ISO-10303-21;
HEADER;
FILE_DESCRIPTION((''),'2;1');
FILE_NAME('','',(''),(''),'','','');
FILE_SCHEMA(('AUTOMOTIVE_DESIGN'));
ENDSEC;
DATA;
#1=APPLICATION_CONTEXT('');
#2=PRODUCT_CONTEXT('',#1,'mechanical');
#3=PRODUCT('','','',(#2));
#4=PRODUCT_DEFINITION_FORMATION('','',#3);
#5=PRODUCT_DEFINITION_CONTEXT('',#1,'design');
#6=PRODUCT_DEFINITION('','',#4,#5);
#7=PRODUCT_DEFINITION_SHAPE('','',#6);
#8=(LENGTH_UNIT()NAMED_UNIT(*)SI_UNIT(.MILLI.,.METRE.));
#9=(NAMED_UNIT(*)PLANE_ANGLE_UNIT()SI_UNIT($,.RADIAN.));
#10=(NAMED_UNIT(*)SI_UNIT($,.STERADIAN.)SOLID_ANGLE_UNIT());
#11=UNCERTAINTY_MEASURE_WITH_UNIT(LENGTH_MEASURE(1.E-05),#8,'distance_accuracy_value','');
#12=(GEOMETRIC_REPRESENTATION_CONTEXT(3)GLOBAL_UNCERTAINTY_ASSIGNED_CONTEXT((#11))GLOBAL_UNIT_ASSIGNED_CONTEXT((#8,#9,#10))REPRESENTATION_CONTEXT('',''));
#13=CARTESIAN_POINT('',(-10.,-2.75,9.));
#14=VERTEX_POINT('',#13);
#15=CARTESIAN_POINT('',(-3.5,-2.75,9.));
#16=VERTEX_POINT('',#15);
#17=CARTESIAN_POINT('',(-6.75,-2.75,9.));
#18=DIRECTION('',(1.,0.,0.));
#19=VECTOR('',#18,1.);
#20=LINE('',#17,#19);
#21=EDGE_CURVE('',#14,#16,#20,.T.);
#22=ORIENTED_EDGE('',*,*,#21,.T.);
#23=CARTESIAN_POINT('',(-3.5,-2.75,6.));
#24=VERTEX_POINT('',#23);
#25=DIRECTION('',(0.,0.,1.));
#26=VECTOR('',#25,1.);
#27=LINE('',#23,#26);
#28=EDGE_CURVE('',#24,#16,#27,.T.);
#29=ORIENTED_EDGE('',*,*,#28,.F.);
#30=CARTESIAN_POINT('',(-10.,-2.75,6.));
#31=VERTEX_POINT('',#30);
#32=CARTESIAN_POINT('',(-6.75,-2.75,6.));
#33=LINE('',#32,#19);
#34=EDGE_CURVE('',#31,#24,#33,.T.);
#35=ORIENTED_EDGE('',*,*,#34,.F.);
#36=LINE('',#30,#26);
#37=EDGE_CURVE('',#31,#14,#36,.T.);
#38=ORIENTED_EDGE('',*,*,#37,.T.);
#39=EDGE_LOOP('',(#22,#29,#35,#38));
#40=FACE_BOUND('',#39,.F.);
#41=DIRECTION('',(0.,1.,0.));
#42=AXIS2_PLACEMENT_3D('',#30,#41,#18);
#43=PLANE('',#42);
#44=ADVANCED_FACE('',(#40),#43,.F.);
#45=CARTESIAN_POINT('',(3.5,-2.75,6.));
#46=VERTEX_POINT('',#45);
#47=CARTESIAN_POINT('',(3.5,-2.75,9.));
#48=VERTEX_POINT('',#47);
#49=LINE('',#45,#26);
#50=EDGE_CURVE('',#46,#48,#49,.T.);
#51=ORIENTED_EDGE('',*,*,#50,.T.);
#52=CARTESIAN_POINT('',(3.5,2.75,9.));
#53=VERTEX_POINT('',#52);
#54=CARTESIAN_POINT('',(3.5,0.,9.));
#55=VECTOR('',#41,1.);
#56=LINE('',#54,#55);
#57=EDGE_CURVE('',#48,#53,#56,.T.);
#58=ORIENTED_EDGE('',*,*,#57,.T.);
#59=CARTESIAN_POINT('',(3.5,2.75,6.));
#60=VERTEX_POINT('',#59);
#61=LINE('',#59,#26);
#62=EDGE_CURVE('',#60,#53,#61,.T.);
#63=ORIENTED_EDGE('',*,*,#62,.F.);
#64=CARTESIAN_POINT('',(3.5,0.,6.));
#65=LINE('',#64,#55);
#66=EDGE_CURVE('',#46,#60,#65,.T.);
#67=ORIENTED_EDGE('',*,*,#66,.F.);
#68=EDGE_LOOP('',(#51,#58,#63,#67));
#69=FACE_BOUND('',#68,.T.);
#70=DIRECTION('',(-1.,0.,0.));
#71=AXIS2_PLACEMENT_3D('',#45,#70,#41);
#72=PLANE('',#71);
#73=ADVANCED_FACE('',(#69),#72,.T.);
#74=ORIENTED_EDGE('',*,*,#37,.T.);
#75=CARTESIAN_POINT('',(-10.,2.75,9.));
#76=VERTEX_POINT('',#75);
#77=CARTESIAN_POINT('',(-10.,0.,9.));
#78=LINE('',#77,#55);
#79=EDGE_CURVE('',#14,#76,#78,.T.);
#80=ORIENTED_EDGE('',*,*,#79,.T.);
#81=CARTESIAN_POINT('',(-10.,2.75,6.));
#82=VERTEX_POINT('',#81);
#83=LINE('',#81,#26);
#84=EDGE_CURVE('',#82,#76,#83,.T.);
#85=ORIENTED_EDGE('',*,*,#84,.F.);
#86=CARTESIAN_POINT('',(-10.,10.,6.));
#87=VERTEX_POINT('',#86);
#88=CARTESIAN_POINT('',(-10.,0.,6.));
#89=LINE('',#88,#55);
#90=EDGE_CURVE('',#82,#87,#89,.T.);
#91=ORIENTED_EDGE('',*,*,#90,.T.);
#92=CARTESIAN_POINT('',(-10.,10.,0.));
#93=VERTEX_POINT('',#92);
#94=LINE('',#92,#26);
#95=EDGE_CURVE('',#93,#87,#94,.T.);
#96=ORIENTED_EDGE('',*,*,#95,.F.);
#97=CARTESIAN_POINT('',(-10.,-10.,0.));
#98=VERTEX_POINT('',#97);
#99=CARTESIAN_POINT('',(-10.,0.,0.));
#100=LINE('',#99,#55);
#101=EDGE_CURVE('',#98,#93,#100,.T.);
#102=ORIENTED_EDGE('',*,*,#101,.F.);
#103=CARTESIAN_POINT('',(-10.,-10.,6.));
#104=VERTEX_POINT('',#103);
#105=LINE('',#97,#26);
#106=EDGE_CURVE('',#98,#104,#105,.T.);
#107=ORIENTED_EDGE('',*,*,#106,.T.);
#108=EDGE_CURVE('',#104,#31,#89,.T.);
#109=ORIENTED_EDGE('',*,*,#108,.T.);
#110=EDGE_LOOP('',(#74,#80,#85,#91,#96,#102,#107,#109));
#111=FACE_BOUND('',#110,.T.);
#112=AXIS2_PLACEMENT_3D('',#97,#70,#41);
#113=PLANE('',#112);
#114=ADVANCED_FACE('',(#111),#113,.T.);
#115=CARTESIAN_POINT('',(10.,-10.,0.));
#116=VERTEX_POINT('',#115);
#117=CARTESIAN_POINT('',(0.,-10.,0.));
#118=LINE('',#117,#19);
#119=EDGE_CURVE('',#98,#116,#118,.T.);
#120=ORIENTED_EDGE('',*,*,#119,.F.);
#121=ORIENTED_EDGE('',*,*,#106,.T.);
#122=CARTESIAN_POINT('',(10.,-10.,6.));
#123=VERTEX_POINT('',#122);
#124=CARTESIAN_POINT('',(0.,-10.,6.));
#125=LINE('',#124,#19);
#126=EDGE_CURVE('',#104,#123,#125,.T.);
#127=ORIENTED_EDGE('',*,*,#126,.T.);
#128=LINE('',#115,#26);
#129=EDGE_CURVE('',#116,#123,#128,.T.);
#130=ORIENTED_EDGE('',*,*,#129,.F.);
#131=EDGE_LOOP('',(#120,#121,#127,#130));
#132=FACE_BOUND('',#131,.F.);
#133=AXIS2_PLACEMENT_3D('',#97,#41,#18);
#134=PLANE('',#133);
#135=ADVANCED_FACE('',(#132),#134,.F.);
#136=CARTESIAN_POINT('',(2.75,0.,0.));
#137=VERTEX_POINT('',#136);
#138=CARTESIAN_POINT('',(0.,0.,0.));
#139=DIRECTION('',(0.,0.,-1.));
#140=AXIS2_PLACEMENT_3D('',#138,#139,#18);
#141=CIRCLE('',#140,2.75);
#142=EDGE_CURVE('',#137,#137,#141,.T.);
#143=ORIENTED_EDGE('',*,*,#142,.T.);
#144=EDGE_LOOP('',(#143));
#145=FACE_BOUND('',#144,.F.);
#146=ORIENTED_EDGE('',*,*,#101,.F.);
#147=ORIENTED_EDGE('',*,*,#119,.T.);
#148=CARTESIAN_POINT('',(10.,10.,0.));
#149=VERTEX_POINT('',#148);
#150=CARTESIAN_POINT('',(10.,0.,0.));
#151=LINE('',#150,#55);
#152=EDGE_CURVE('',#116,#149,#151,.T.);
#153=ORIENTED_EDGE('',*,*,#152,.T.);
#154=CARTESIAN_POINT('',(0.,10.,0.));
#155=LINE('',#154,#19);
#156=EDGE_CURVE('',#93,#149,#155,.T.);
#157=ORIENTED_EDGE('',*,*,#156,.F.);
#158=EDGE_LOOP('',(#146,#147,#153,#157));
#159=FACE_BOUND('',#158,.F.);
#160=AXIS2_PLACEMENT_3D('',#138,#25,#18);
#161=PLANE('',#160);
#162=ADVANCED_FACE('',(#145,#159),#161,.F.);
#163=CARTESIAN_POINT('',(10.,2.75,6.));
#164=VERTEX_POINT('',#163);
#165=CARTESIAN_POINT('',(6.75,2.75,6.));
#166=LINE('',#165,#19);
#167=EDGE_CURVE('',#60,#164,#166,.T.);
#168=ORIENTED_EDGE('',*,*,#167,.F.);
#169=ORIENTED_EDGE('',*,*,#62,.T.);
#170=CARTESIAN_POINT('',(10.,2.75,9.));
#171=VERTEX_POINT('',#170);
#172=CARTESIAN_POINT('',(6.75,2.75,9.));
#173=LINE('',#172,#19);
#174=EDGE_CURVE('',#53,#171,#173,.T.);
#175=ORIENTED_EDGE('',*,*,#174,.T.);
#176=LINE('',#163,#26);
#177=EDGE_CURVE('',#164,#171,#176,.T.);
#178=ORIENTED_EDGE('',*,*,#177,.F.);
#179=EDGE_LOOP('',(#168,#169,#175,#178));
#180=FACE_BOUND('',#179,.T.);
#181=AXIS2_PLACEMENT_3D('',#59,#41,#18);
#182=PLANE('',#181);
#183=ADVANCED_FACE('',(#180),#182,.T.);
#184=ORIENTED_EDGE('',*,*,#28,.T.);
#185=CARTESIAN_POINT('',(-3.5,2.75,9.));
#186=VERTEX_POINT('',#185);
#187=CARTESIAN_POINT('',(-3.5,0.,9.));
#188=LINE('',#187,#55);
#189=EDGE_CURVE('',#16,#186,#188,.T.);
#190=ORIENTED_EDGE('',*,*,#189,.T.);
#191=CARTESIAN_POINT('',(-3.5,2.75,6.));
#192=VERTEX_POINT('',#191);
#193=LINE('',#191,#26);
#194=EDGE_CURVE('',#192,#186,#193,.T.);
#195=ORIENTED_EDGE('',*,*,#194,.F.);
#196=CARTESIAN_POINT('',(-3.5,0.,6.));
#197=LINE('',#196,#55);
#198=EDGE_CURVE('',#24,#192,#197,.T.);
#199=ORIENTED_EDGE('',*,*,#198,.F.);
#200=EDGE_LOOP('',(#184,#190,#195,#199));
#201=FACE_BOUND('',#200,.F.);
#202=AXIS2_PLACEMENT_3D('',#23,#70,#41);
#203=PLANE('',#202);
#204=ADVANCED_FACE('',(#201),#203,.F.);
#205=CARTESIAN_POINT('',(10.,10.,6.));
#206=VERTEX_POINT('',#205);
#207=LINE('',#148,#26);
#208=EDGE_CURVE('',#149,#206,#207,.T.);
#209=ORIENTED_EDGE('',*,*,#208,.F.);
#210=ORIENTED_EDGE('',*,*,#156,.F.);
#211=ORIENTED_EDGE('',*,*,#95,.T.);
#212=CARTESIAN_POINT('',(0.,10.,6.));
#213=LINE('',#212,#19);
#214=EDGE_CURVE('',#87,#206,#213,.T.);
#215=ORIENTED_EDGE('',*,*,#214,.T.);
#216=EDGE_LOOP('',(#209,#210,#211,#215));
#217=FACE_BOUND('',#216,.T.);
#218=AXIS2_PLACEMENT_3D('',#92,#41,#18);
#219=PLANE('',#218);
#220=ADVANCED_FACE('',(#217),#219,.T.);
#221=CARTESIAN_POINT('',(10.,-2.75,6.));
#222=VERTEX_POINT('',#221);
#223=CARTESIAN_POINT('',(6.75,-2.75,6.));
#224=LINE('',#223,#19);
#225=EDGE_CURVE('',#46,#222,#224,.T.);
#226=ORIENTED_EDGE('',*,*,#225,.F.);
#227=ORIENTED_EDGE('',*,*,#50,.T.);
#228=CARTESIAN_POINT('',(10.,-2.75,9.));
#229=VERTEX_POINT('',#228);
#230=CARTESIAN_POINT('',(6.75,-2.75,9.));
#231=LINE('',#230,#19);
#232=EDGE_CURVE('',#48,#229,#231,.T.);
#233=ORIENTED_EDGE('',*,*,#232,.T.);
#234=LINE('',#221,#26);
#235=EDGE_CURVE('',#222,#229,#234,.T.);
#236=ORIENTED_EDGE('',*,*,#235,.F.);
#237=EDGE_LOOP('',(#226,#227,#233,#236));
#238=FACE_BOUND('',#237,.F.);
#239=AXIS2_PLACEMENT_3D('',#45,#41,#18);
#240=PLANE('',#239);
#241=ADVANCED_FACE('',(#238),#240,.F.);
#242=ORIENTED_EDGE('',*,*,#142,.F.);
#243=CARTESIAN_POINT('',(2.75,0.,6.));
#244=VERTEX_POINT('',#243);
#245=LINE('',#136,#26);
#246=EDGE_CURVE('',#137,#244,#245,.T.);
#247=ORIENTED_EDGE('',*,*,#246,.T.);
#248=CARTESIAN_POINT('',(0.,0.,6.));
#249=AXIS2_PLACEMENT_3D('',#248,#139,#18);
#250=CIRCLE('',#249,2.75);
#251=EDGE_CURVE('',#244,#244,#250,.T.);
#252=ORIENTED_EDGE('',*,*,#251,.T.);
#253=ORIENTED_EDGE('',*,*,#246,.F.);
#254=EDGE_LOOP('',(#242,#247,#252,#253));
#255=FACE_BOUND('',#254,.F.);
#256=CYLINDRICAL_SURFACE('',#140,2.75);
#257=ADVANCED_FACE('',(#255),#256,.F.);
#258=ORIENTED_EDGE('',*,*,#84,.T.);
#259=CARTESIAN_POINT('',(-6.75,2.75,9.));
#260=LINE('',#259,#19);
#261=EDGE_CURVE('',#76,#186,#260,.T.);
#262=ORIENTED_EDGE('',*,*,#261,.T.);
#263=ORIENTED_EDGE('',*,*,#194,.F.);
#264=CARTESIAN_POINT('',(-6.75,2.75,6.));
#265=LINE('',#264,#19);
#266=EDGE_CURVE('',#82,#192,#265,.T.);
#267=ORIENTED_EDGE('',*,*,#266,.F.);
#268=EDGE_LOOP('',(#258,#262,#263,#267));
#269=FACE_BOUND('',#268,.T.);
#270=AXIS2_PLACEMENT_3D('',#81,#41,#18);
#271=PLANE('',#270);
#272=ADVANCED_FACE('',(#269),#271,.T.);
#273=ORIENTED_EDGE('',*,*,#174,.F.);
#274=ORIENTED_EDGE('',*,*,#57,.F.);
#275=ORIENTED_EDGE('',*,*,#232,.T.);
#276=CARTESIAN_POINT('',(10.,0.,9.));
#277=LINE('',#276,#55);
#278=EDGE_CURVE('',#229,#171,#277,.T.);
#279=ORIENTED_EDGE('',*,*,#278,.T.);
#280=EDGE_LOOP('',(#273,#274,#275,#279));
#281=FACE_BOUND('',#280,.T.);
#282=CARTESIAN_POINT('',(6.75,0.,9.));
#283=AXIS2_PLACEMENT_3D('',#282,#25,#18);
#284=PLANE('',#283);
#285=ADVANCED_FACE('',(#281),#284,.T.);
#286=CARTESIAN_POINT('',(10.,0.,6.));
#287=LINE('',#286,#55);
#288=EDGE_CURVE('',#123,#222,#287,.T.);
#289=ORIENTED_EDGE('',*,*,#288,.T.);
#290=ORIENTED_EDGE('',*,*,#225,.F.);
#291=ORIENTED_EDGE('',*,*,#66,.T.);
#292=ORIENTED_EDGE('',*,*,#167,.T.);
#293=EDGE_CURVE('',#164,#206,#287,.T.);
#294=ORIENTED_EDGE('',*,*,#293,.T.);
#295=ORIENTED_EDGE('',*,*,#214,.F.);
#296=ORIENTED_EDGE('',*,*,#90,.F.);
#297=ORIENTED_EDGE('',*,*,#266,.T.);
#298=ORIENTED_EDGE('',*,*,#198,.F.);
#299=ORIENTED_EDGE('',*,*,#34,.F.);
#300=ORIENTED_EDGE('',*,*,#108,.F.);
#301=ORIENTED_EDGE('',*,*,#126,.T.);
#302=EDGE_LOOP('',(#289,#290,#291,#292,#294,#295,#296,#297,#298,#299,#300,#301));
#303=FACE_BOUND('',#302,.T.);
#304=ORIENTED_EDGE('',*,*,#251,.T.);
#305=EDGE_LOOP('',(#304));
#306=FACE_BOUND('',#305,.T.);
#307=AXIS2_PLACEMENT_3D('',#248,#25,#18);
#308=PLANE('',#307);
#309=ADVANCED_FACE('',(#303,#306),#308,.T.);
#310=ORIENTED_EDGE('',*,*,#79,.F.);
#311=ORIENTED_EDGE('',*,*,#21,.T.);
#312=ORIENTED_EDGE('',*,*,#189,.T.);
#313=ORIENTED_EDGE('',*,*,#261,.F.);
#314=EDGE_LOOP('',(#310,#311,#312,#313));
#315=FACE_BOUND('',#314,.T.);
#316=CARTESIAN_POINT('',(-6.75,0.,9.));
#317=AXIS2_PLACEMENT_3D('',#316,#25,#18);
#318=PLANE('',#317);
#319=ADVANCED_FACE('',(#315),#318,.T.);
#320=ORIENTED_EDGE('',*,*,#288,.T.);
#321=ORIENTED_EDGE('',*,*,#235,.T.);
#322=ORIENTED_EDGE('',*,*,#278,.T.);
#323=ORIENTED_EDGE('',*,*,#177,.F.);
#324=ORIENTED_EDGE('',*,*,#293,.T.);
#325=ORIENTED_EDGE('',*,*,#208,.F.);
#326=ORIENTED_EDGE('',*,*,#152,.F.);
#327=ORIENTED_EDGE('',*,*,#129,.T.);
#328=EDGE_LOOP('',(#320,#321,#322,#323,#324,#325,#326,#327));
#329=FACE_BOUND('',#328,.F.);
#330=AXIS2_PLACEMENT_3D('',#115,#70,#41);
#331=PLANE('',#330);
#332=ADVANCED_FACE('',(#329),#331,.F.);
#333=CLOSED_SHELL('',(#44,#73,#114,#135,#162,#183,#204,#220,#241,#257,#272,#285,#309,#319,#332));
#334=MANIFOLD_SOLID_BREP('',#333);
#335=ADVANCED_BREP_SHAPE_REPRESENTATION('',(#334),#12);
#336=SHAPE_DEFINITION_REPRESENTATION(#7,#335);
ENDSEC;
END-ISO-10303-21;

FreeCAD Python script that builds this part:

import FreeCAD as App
import Part
import Sketcher

doc = App.newDocument("Part")
params = doc.addObject("Spreadsheet::Sheet", "Params")
for row, (alias, value) in enumerate([
    ("sketch1_width", "20 mm"),
    ("pad1_length", "6 mm"),
    ("sketch2_width", "6.5 mm"),
    ("sketch2_height", "5.5 mm"),
    ("pad2_length", "3 mm"),
    ("sketch3_diameter", "5.5 mm"),
], start=1):
    params.set(f"A{row}", alias)
    params.set(f"B{row}", "=" + value)
    params.setAlias(f"B{row}", alias)

body = doc.addObject("PartDesign::Body", "Body")

sketch1 = body.newObject("Sketcher::SketchObject", "Sketch")
sketch1.AttachmentSupport = (doc.getObject("XY_Plane"), [""])
sketch1.MapMode = "FlatFace"
sketch1.addGeometry(Part.LineSegment(App.Vector(-10, 10, 0), App.Vector(-10, -10, 0)), False)
sketch1.addGeometry(Part.LineSegment(App.Vector(-10, -10, 0), App.Vector(10, -10, 0)), False)
sketch1.addGeometry(Part.LineSegment(App.Vector(10, -10, 0), App.Vector(10, 10, 0)), False)
sketch1.addGeometry(Part.LineSegment(App.Vector(10, 10, 0), App.Vector(-10, 10, 0)), False)
sketch1.addConstraint(Sketcher.Constraint("Coincident", 0, 2, 1, 1))
sketch1.addConstraint(Sketcher.Constraint("Coincident", 1, 2, 2, 1))
sketch1.addConstraint(Sketcher.Constraint("Coincident", 2, 2, 3, 1))
sketch1.addConstraint(Sketcher.Constraint("Coincident", 3, 2, 0, 1))
sketch1.addConstraint(Sketcher.Constraint("Vertical", 0))
sketch1.addConstraint(Sketcher.Constraint("Horizontal", 1))
sketch1.addConstraint(Sketcher.Constraint("Vertical", 2))
sketch1.addConstraint(Sketcher.Constraint("Horizontal", 3))
sketch1.addConstraint(Sketcher.Constraint("Symmetric", 0, 2, 2, 2, -1, 1))
sketch1.addConstraint(Sketcher.Constraint("Equal", 3, 0))
sketch1.addConstraint(Sketcher.Constraint("DistanceX", 1, 1, 1, 2, 20.0))
sketch1.setExpression("Constraints[10]", "Params.sketch1_width")
pad1 = body.newObject("PartDesign::Pad", "Pad")
pad1.Profile = sketch1
pad1.setExpression("Length", "Params.pad1_length")

sketch2 = body.newObject("Sketcher::SketchObject", "Sketch001")
sketch2.AttachmentSupport = (doc.getObject("XY_Plane"), [""])
sketch2.MapMode = "FlatFace"
sketch2.AttachmentOffset = App.Placement(App.Vector(0, 0, 6), App.Rotation())
sketch2.addGeometry(Part.LineSegment(App.Vector(4, 3, 0), App.Vector(4, -3, 0)), False)
sketch2.addGeometry(Part.LineSegment(App.Vector(4, -3, 0), App.Vector(10, -3, 0)), False)
sketch2.addGeometry(Part.LineSegment(App.Vector(10, -3, 0), App.Vector(10, 3, 0)), False)
sketch2.addGeometry(Part.LineSegment(App.Vector(10, 3, 0), App.Vector(4, 3, 0)), False)
sketch2.addGeometry(Part.LineSegment(App.Vector(-10, 3, 0), App.Vector(-10, -3, 0)), False)
sketch2.addGeometry(Part.LineSegment(App.Vector(-10, -3, 0), App.Vector(-4, -3, 0)), False)
sketch2.addGeometry(Part.LineSegment(App.Vector(-4, -3, 0), App.Vector(-4, 3, 0)), False)
sketch2.addGeometry(Part.LineSegment(App.Vector(-4, 3, 0), App.Vector(-10, 3, 0)), False)
sketch2.addConstraint(Sketcher.Constraint("Coincident", 0, 2, 1, 1))
sketch2.addConstraint(Sketcher.Constraint("Coincident", 1, 2, 2, 1))
sketch2.addConstraint(Sketcher.Constraint("Coincident", 2, 2, 3, 1))
sketch2.addConstraint(Sketcher.Constraint("Coincident", 3, 2, 0, 1))
sketch2.addConstraint(Sketcher.Constraint("Coincident", 4, 2, 5, 1))
sketch2.addConstraint(Sketcher.Constraint("Coincident", 5, 2, 6, 1))
sketch2.addConstraint(Sketcher.Constraint("Coincident", 6, 2, 7, 1))
sketch2.addConstraint(Sketcher.Constraint("Coincident", 7, 2, 4, 1))
sketch2.addConstraint(Sketcher.Constraint("Vertical", 0))
sketch2.addConstraint(Sketcher.Constraint("Horizontal", 1))
sketch2.addConstraint(Sketcher.Constraint("Vertical", 2))
sketch2.addConstraint(Sketcher.Constraint("Horizontal", 3))
sketch2.addConstraint(Sketcher.Constraint("Vertical", 4))
sketch2.addConstraint(Sketcher.Constraint("Horizontal", 5))
sketch2.addConstraint(Sketcher.Constraint("Vertical", 6))
sketch2.addConstraint(Sketcher.Constraint("Horizontal", 7))
sketch2.addConstraint(Sketcher.Constraint("Symmetric", 2, 2, 4, 2, -1, 1))
sketch2.addConstraint(Sketcher.Constraint("Symmetric", 0, 2, 6, 2, -1, 1))
sketch2.addConstraint(Sketcher.Constraint("Horizontal", 1, 2, 4, 2))
sketch2.addConstraint(Sketcher.Constraint("DistanceX", 1, 1, 1, 2, 6.5))
sketch2.addConstraint(Sketcher.Constraint("DistanceY", 0, 2, 0, 1, 5.5))
sketch2.addConstraint(Sketcher.Constraint("DistanceX", -1, 1, 1, 2, 10.0))
sketch2.setExpression("Constraints[19]", "Params.sketch2_width")
sketch2.setExpression("Constraints[20]", "Params.sketch2_height")
pad2 = body.newObject("PartDesign::Pad", "Pad001")
pad2.Profile = sketch2
pad2.setExpression("Length", "Params.pad2_length")

sketch3 = body.newObject("Sketcher::SketchObject", "Sketch002")
sketch3.AttachmentSupport = (doc.getObject("XY_Plane"), [""])
sketch3.MapMode = "FlatFace"
sketch3.addGeometry(Part.Circle(App.Vector(0, 0, 0), App.Vector(0, 0, 1), 2.8), False)
sketch3.addConstraint(Sketcher.Constraint("Coincident", 0, 3, -1, 1))
sketch3.addConstraint(Sketcher.Constraint("Diameter", 0, 5.5))
sketch3.setExpression("Constraints[1]", "Params.sketch3_diameter")
pocket1 = body.newObject("PartDesign::Pocket", "Pocket")
pocket1.Profile = sketch3
pocket1.Type = "ThroughAll"
pocket1.Reversed = True

doc.recompute()
